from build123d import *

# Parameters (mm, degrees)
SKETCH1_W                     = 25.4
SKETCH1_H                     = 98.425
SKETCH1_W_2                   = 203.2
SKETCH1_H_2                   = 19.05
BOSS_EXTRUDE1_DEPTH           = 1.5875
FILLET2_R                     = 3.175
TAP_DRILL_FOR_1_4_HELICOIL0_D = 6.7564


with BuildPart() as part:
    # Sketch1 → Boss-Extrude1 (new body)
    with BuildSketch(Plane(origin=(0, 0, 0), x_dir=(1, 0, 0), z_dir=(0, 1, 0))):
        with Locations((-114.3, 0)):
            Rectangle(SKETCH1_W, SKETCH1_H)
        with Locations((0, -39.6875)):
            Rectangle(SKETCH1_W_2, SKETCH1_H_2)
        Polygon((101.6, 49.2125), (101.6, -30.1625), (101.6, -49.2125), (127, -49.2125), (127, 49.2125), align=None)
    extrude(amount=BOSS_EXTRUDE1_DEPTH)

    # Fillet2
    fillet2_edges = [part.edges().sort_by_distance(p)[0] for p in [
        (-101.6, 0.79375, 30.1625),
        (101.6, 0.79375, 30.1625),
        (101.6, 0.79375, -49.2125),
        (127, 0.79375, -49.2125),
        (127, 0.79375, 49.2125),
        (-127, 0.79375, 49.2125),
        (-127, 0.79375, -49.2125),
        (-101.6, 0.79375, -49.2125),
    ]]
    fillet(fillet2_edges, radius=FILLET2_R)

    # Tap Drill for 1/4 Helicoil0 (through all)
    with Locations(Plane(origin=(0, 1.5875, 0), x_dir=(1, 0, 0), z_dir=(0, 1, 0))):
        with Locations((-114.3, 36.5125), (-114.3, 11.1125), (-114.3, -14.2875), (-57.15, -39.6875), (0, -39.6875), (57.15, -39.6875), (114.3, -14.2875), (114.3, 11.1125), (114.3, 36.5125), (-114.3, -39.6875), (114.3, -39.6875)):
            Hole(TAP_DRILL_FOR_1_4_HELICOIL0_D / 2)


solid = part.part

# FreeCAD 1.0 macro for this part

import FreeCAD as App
import Part
import Sketcher

V = App.Vector
Q = App.Units.Quantity


def edges_at(feature, points):
    """Names of the edges that pass closest to the given points."""
    edges = feature.Shape.Edges
    near = lambda p: min(range(len(edges)), key=lambda i: edges[i].distToShape(Part.Vertex(*p))[0])
    return sorted({f"Edge{near(p) + 1}" for p in points})

doc = App.newDocument("Part")
params = doc.addObject("Spreadsheet::Sheet", "Params")
for row, (alias, value) in enumerate([
    ("sketch1_width", "10 in"),
    ("sketch1_width2", "1 in"),
    ("sketch1_height", "3.875 in"),
    ("sketch1_height2", "3.125 in"),
    ("pad1_length", "0.0625 in"),
    ("fillet_radius", "0.125 in"),
    ("sketch2_diameter", "0.266 in"),
    ("hole_diameter", "0.266 in"),
], start=1):
    params.set(f"A{row}", alias)
    params.set(f"B{row}", "=" + value)
    params.setAlias(f"B{row}", alias)

body = doc.addObject("PartDesign::Body", "Body")

# Sketch on XZ plane
sketch1 = body.newObject("Sketcher::SketchObject", "Sketch")
sketch1.AttachmentSupport = (doc.getObject("XZ_Plane"), [""])
sketch1.MapMode = "FlatFace"
sketch1.addGeometry(Part.LineSegment(V(-127, -49.2125, 0), V(-127, 49.2125, 0)), False)
sketch1.addGeometry(Part.LineSegment(V(-127, 49.2125, 0), V(127, 49.2125, 0)), False)
sketch1.addGeometry(Part.LineSegment(V(127, 49.2125, 0), V(127, -49.2125, 0)), False)
sketch1.addGeometry(Part.LineSegment(V(127, -49.2125, 0), V(101.6, -49.2125, 0)), False)
sketch1.addGeometry(Part.LineSegment(V(101.6, -49.2125, 0), V(101.6, 30.1625, 0)), False)
sketch1.addGeometry(Part.LineSegment(V(101.6, 30.1625, 0), V(-101.6, 30.1625, 0)), False)
sketch1.addGeometry(Part.LineSegment(V(-101.6, 30.1625, 0), V(-101.6, -49.2125, 0)), False)
sketch1.addGeometry(Part.LineSegment(V(-101.6, -49.2125, 0), V(-127, -49.2125, 0)), False)
sketch1.addConstraint(Sketcher.Constraint("Coincident", 0, 2, 1, 1))
sketch1.addConstraint(Sketcher.Constraint("Coincident", 1, 2, 2, 1))
sketch1.addConstraint(Sketcher.Constraint("Coincident", 2, 2, 3, 1))
sketch1.addConstraint(Sketcher.Constraint("Coincident", 3, 2, 4, 1))
sketch1.addConstraint(Sketcher.Constraint("Coincident", 4, 2, 5, 1))
sketch1.addConstraint(Sketcher.Constraint("Coincident", 5, 2, 6, 1))
sketch1.addConstraint(Sketcher.Constraint("Coincident", 6, 2, 7, 1))
sketch1.addConstraint(Sketcher.Constraint("Coincident", 7, 2, 0, 1))
sketch1.addConstraint(Sketcher.Constraint("Vertical", 0))
sketch1.addConstraint(Sketcher.Constraint("Horizontal", 1))
sketch1.addConstraint(Sketcher.Constraint("Vertical", 2))
sketch1.addConstraint(Sketcher.Constraint("Horizontal", 3))
sketch1.addConstraint(Sketcher.Constraint("Vertical", 4))
sketch1.addConstraint(Sketcher.Constraint("Horizontal", 5))
sketch1.addConstraint(Sketcher.Constraint("Vertical", 6))
sketch1.addConstraint(Sketcher.Constraint("Horizontal", 7))
sketch1.addConstraint(Sketcher.Constraint("Symmetric", 0, 2, 2, 2, -1, 1))
sketch1.addConstraint(Sketcher.Constraint("Symmetric", 3, 2, 6, 2, -2))
sketch1.addConstraint(Sketcher.Constraint("DistanceX", 1, 1, 1, 2, Q("10 in")))
sketch1.addConstraint(Sketcher.Constraint("DistanceX", 3, 2, 3, 1, Q("1 in")))
sketch1.addConstraint(Sketcher.Constraint("DistanceY", 0, 1, 0, 2, Q("3.875 in")))
sketch1.addConstraint(Sketcher.Constraint("DistanceY", 4, 1, 4, 2, Q("3.125 in")))
sketch1.setExpression("Constraints[18]", "Params.sketch1_width")
sketch1.setExpression("Constraints[19]", "Params.sketch1_width2")
sketch1.setExpression("Constraints[20]", "Params.sketch1_height")
sketch1.setExpression("Constraints[21]", "Params.sketch1_height2")
pad1 = body.newObject("PartDesign::Pad", "Pad")
pad1.Profile = sketch1
pad1.setExpression("Length", "Params.pad1_length")
pad1.Reversed = True
doc.recompute()

fillet = body.newObject("PartDesign::Fillet", "Fillet")
fillet.Base = (pad1, edges_at(pad1, [
    (-101.6, 0.794, 30.163),
    (101.6, 0.794, 30.163),
    (101.6, 0.794, -49.212),
    (127, 0.794, -49.212),
    (127, 0.794, 49.212),
    (-127, 0.794, 49.212),
    (-127, 0.794, -49.212),
    (-101.6, 0.794, -49.212),
]))
fillet.setExpression("Radius", "Params.fillet_radius")

# Sketch on XZ plane
sketch2 = body.newObject("Sketcher::SketchObject", "Sketch001")
sketch2.AttachmentSupport = (doc.getObject("XZ_Plane"), [""])
sketch2.MapMode = "FlatFace"
sketch2.AttachmentOffset = App.Placement(V(0, 0, -0.0625 * 25.4), App.Rotation())
sketch2.addGeometry(Part.Circle(V(-114.3, -36.5125, 0), V(0, 0, 1), 3.3782), False)
sketch2.addGeometry(Part.Circle(V(-114.3, -11.1125, 0), V(0, 0, 1), 3.3782), False)
sketch2.addGeometry(Part.Circle(V(-114.3, 14.2875, 0), V(0, 0, 1), 3.3782), False)
sketch2.addGeometry(Part.Circle(V(-57.15, 39.6875, 0), V(0, 0, 1), 3.3782), False)
sketch2.addGeometry(Part.Circle(V(0, 39.6875, 0), V(0, 0, 1), 3.3782), False)
sketch2.addGeometry(Part.Circle(V(57.15, 39.6875, 0), V(0, 0, 1), 3.3782), False)
sketch2.addGeometry(Part.Circle(V(114.3, 14.2875, 0), V(0, 0, 1), 3.3782), False)
sketch2.addGeometry(Part.Circle(V(114.3, -11.1125, 0), V(0, 0, 1), 3.3782), False)
sketch2.addGeometry(Part.Circle(V(114.3, -36.5125, 0), V(0, 0, 1), 3.3782), False)
sketch2.addGeometry(Part.Circle(V(-114.3, 39.6875, 0), V(0, 0, 1), 3.3782), False)
sketch2.addGeometry(Part.Circle(V(114.3, 39.6875, 0), V(0, 0, 1), 3.3782), False)
sketch2.addConstraint(Sketcher.Constraint("Equal", 0, 1))
sketch2.addConstraint(Sketcher.Constraint("Equal", 1, 2))
sketch2.addConstraint(Sketcher.Constraint("Equal", 2, 3))
sketch2.addConstraint(Sketcher.Constraint("Equal", 3, 4))
sketch2.addConstraint(Sketcher.Constraint("Equal", 4, 5))
sketch2.addConstraint(Sketcher.Constraint("Equal", 5, 6))
sketch2.addConstraint(Sketcher.Constraint("Equal", 6, 7))
sketch2.addConstraint(Sketcher.Constraint("Equal", 7, 8))
sketch2.addConstraint(Sketcher.Constraint("Equal", 8, 9))
sketch2.addConstraint(Sketcher.Constraint("Equal", 9, 10))
sketch2.addConstraint(Sketcher.Constraint("Symmetric", 3, 3, 5, 3, -2))
sketch2.addConstraint(Sketcher.Constraint("Symmetric", 2, 3, 6, 3, -2))
sketch2.addConstraint(Sketcher.Constraint("Symmetric", 1, 3, 7, 3, -2))
sketch2.addConstraint(Sketcher.Constraint("Symmetric", 0, 3, 8, 3, -2))
sketch2.addConstraint(Sketcher.Constraint("Symmetric", 9, 3, 10, 3, -2))
sketch2.addConstraint(Sketcher.Constraint("PointOnObject", 4, 3, -2))
sketch2.addConstraint(Sketcher.Constraint("Horizontal", 3, 3, 4, 3))
sketch2.addConstraint(Sketcher.Constraint("Horizontal", 5, 3, 9, 3))
sketch2.addConstraint(Sketcher.Constraint("Vertical", 0, 3, 1, 3))
sketch2.addConstraint(Sketcher.Constraint("Vertical", 1, 3, 2, 3))
sketch2.addConstraint(Sketcher.Constraint("Vertical", 2, 3, 9, 3))
sketch2.addConstraint(Sketcher.Constraint("Diameter", 0, Q("0.266 in")))
sketch2.addConstraint(Sketcher.Constraint("DistanceY", 0, 3, 1, 3, Q("1 in")))
sketch2.addConstraint(Sketcher.Constraint("DistanceY", 1, 3, 2, 3, Q("1 in")))
sketch2.addConstraint(Sketcher.Constraint("DistanceY", 2, 3, 3, 3, Q("1 in")))
sketch2.addConstraint(Sketcher.Constraint("DistanceX", 2, 3, 6, 3, Q("9 in")))
sketch2.addConstraint(Sketcher.Constraint("DistanceX", 3, 3, 5, 3, Q("4.5 in")))
sketch2.addConstraint(Sketcher.Constraint("DistanceY", 0, 3, -1, 1, Q("1.4375 in")))
sketch2.setExpression("Constraints[21]", "Params.sketch2_diameter")
doc.recompute()
hole = body.newObject("PartDesign::Hole", "Hole")
hole.Profile = sketch2
hole.ThreadType = "None"
hole.setExpression("Diameter", "Params.hole_diameter")
hole.DepthType = "ThroughAll"
hole.Reversed = True

doc.recompute()
